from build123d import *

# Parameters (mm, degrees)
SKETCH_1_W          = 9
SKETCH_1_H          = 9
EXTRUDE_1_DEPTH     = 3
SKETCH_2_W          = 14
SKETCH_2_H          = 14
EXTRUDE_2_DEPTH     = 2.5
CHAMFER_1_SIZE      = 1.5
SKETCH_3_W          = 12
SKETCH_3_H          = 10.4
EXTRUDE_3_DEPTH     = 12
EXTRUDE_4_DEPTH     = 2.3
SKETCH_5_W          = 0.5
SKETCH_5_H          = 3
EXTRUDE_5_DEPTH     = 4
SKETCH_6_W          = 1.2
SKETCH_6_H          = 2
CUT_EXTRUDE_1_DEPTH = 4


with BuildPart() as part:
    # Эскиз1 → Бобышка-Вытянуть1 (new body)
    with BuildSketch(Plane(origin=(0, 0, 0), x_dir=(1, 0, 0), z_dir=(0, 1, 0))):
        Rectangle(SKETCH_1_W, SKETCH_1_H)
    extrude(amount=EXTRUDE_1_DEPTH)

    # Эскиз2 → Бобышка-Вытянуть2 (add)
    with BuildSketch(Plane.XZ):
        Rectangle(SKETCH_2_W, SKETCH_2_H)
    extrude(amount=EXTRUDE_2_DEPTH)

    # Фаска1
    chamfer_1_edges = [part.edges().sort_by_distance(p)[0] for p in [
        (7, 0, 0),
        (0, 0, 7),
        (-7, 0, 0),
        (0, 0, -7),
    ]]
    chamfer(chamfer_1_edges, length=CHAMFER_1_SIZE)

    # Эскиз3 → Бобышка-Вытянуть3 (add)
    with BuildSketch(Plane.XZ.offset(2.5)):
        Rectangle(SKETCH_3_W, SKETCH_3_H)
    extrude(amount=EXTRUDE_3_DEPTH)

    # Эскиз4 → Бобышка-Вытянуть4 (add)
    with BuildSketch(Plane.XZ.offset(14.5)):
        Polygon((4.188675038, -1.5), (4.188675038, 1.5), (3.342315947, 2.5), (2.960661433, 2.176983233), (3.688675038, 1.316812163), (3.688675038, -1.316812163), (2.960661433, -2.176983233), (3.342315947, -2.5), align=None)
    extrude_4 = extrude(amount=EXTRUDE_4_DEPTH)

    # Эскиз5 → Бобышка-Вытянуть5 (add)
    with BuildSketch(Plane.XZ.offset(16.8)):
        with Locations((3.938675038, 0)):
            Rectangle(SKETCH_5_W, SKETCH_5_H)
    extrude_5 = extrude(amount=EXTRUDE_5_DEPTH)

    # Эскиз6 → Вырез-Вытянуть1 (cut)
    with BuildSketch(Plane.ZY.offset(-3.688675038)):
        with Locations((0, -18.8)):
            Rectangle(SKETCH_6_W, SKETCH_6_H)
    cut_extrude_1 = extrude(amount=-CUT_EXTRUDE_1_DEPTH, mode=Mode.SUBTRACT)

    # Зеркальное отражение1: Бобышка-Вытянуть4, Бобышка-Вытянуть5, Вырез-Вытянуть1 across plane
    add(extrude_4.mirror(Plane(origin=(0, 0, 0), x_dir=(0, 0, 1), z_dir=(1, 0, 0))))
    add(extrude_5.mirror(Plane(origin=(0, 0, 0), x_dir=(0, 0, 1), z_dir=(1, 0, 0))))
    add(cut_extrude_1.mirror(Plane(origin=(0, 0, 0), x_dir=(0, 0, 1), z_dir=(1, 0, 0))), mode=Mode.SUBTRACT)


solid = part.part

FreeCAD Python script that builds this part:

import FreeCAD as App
import Part
import Sketcher
Q = App.Units.Quantity


def edges_at(feature, points):
    """Names of the edges that pass closest to the given points."""
    edges = feature.Shape.Edges
    near = lambda p: min(range(len(edges)), key=lambda i: edges[i].distToShape(Part.Vertex(*p))[0])
    return sorted({f"Edge{near(p) + 1}" for p in points})


def add_polygon(sketch, points):
    """Adds a closed chain of lines whose ends are joined by coincident constraints."""
    first, n = sketch.GeometryCount, len(points)
    for a, b in zip(points, points[1:] + points[:1]):
        sketch.addGeometry(Part.LineSegment(App.Vector(*a, 0), App.Vector(*b, 0)), False)
    for i in range(n):
        sketch.addConstraint(Sketcher.Constraint("Coincident", first + i, 2, first + (i + 1) % n, 1))

doc = App.newDocument("Part")
body = doc.addObject("PartDesign::Body", "Body")

# Sketch on XZ plane
sketch1 = doc.addObject("Sketcher::SketchObject", "Sketch")
body.addObject(sketch1)
sketch1.AttachmentSupport = (doc.XZ_Plane, [""])
sketch1.MapMode = "FlatFace"
add_polygon(sketch1, [(-4, -4), (-4, 4), (4, 4), (4, -4)])  # lines 0-3
sketch1.addConstraint(Sketcher.Constraint("Vertical", 0))
sketch1.addConstraint(Sketcher.Constraint("Horizontal", 1))
sketch1.addConstraint(Sketcher.Constraint("Vertical", 2))
sketch1.addConstraint(Sketcher.Constraint("Horizontal", 3))
sketch1.addConstraint(Sketcher.Constraint("Symmetric", 0, 2, 2, 2, -1, 1))
sketch1.addConstraint(Sketcher.Constraint("Equal", 3, 0))
sketch1.addConstraint(Sketcher.Constraint("DistanceX", 1, 1, 1, 2, Q("9 mm")))
pad1 = doc.addObject("PartDesign::Pad", "Pad")
body.addObject(pad1)
pad1.Profile = sketch1
pad1.Length = 3
pad1.Reversed = True

# Sketch on XZ plane
sketch2 = doc.addObject("Sketcher::SketchObject", "Sketch001")
body.addObject(sketch2)
sketch2.AttachmentSupport = (doc.XZ_Plane, [""])
sketch2.MapMode = "FlatFace"
add_polygon(sketch2, [(-7, 7), (-7, -7), (7, -7), (7, 7)])  # lines 0-3
sketch2.addConstraint(Sketcher.Constraint("Vertical", 0))
sketch2.addConstraint(Sketcher.Constraint("Horizontal", 1))
sketch2.addConstraint(Sketcher.Constraint("Vertical", 2))
sketch2.addConstraint(Sketcher.Constraint("Horizontal", 3))
sketch2.addConstraint(Sketcher.Constraint("Symmetric", 0, 2, 2, 2, -1, 1))
sketch2.addConstraint(Sketcher.Constraint("Equal", 3, 0))
sketch2.addConstraint(Sketcher.Constraint("DistanceX", 1, 1, 1, 2, Q("14 mm")))
pad2 = doc.addObject("PartDesign::Pad", "Pad001")
body.addObject(pad2)
pad2.Profile = sketch2
pad2.Length = 2.5
doc.recompute()

chamfer = doc.addObject("PartDesign::Chamfer", "Chamfer")
body.addObject(chamfer)
chamfer.Base = (pad2, edges_at(pad2, [
    (7, 0, 0),
    (0, 0, 7),
    (-7, 0, 0),
    (0, 0, -7),
]))
chamfer.Size = 1.5

# Sketch on XZ plane
sketch3 = doc.addObject("Sketcher::SketchObject", "Sketch002")
body.addObject(sketch3)
sketch3.AttachmentSupport = (doc.XZ_Plane, [""])
sketch3.MapMode = "FlatFace"
sketch3.AttachmentOffset = App.Placement(App.Vector(0, 0, 2.5), App.Rotation())
add_polygon(sketch3, [(-6, 5), (-6, -5), (6, -5), (6, 5)])  # lines 0-3
sketch3.addConstraint(Sketcher.Constraint("Vertical", 0))
sketch3.addConstraint(Sketcher.Constraint("Horizontal", 1))
sketch3.addConstraint(Sketcher.Constraint("Vertical", 2))
sketch3.addConstraint(Sketcher.Constraint("Horizontal", 3))
sketch3.addConstraint(Sketcher.Constraint("Symmetric", 0, 2, 2, 2, -1, 1))
sketch3.addConstraint(Sketcher.Constraint("DistanceX", 1, 1, 1, 2, Q("12 mm")))
sketch3.addConstraint(Sketcher.Constraint("DistanceY", 0, 2, 0, 1, Q("10.4 mm")))
pad3 = doc.addObject("PartDesign::Pad", "Pad002")
body.addObject(pad3)
pad3.Profile = sketch3
pad3.Length = 12

# Sketch on XZ plane
sketch4 = doc.addObject("Sketcher::SketchObject", "Sketch003")
body.addObject(sketch4)
sketch4.AttachmentSupport = (doc.XZ_Plane, [""])
sketch4.MapMode = "FlatFace"
sketch4.AttachmentOffset = App.Placement(App.Vector(0, 0, 14.5), App.Rotation())
add_polygon(sketch4, [(4.19, -1.5), (4.19, 1.5), (3.34, 2.5), (2.96, 2.18), (3.69, 1.32), (3.69, -1.32), (2.96, -2.18), (3.34, -2.5)])  # lines 0-7
sketch4.addConstraint(Sketcher.Constraint("Vertical", 0))
sketch4.addConstraint(Sketcher.Constraint("Vertical", 4))
sketch4.addConstraint(Sketcher.Constraint("Symmetric", 2, 2, 5, 2, -1))
sketch4.addConstraint(Sketcher.Constraint("Symmetric", 1, 2, 6, 2, -1))
sketch4.addConstraint(Sketcher.Constraint("Perpendicular", 1, 2))
sketch4.addConstraint(Sketcher.Constraint("Perpendicular", 2, 3))
sketch4.addConstraint(Sketcher.Constraint("Perpendicular", 5, 6))
sketch4.addConstraint(Sketcher.Constraint("Perpendicular", 6, 7))
sketch4.addConstraint(Sketcher.Constraint("DistanceY", 0, 1, 0, 2, Q("3 mm")))
sketch4.addConstraint(Sketcher.Constraint("DistanceY", 0, 2, 1, 2, Q("1 mm")))
sketch4.addConstraint(Sketcher.Constraint("Distance", 2, Q("0.5 mm")))
sketch4.addConstraint(Sketcher.Constraint("DistanceX", 3, 2, 0, 2, Q("0.5 mm")))
sketch4.addConstraint(Sketcher.Constraint("DistanceY", 4, 2, 4, 1, Q("2.633624 mm")))
sketch4.addConstraint(Sketcher.Constraint("DistanceX", -1, 1, 2, 2, Q("2.960661 mm")))
pad4 = doc.addObject("PartDesign::Pad", "Pad003")
body.addObject(pad4)
pad4.Profile = sketch4
pad4.Length = 2.3

# Sketch on XZ plane
sketch5 = doc.addObject("Sketcher::SketchObject", "Sketch004")
body.addObject(sketch5)
sketch5.AttachmentSupport = (doc.XZ_Plane, [""])
sketch5.MapMode = "FlatFace"
sketch5.AttachmentOffset = App.Placement(App.Vector(0, 0, 16.8), App.Rotation())
add_polygon(sketch5, [(3.7, 1.5), (3.7, -1.5), (4.2, -1.5), (4.2, 1.5)])  # lines 0-3
sketch5.addConstraint(Sketcher.Constraint("Vertical", 0))
sketch5.addConstraint(Sketcher.Constraint("Horizontal", 1))
sketch5.addConstraint(Sketcher.Constraint("Vertical", 2))
sketch5.addConstraint(Sketcher.Constraint("Horizontal", 3))
sketch5.addConstraint(Sketcher.Constraint("DistanceY", 0, 2, 0, 1, Q("3 mm")))
sketch5.addConstraint(Sketcher.Constraint("DistanceX", 1, 1, 1, 2, Q("0.5 mm")))
sketch5.addConstraint(Sketcher.Constraint("DistanceY", 0, 2, -1, 1, Q("1.5 mm")))
sketch5.addConstraint(Sketcher.Constraint("DistanceX", -1, 1, 0, 2, Q("3.688675 mm")))
pad5 = doc.addObject("PartDesign::Pad", "Pad004")
body.addObject(pad5)
pad5.Profile = sketch5
pad5.Length = 4

# Sketch on YZ plane
sketch6 = doc.addObject("Sketcher::SketchObject", "Sketch005")
body.addObject(sketch6)
sketch6.AttachmentSupport = (doc.YZ_Plane, [""])
sketch6.MapMode = "FlatFace"
sketch6.AttachmentOffset = App.Placement(App.Vector(0, 0, 3.688675), App.Rotation())
add_polygon(sketch6, [(-17.8, -0.6), (-19.8, -0.6), (-19.8, 0.6), (-17.8, 0.6)])  # lines 0-3
sketch6.addConstraint(Sketcher.Constraint("Horizontal", 0))
sketch6.addConstraint(Sketcher.Constraint("Vertical", 1))
sketch6.addConstraint(Sketcher.Constraint("Horizontal", 2))
sketch6.addConstraint(Sketcher.Constraint("Vertical", 3))
sketch6.addConstraint(Sketcher.Constraint("DistanceX", 0, 2, 0, 1, Q("2 mm")))
sketch6.addConstraint(Sketcher.Constraint("DistanceY", 1, 1, 1, 2, Q("1.2 mm")))
sketch6.addConstraint(Sketcher.Constraint("DistanceX", 0, 2, -1, 1, Q("19.8 mm")))
sketch6.addConstraint(Sketcher.Constraint("DistanceY", 0, 2, -1, 1, Q("0.6 mm")))
pocket1 = doc.addObject("PartDesign::Pocket", "Pocket")
body.addObject(pocket1)
pocket1.Profile = sketch6
pocket1.Length = 4
pocket1.Reversed = True
doc.recompute()

mirrored = doc.addObject("PartDesign::Mirrored", "Mirrored")
body.addObject(mirrored)
mirrored.Originals = [pad4, pad5, pocket1]
mirrored.MirrorPlane = (doc.YZ_Plane, [""])
body.Tip = mirrored

doc.recompute()
